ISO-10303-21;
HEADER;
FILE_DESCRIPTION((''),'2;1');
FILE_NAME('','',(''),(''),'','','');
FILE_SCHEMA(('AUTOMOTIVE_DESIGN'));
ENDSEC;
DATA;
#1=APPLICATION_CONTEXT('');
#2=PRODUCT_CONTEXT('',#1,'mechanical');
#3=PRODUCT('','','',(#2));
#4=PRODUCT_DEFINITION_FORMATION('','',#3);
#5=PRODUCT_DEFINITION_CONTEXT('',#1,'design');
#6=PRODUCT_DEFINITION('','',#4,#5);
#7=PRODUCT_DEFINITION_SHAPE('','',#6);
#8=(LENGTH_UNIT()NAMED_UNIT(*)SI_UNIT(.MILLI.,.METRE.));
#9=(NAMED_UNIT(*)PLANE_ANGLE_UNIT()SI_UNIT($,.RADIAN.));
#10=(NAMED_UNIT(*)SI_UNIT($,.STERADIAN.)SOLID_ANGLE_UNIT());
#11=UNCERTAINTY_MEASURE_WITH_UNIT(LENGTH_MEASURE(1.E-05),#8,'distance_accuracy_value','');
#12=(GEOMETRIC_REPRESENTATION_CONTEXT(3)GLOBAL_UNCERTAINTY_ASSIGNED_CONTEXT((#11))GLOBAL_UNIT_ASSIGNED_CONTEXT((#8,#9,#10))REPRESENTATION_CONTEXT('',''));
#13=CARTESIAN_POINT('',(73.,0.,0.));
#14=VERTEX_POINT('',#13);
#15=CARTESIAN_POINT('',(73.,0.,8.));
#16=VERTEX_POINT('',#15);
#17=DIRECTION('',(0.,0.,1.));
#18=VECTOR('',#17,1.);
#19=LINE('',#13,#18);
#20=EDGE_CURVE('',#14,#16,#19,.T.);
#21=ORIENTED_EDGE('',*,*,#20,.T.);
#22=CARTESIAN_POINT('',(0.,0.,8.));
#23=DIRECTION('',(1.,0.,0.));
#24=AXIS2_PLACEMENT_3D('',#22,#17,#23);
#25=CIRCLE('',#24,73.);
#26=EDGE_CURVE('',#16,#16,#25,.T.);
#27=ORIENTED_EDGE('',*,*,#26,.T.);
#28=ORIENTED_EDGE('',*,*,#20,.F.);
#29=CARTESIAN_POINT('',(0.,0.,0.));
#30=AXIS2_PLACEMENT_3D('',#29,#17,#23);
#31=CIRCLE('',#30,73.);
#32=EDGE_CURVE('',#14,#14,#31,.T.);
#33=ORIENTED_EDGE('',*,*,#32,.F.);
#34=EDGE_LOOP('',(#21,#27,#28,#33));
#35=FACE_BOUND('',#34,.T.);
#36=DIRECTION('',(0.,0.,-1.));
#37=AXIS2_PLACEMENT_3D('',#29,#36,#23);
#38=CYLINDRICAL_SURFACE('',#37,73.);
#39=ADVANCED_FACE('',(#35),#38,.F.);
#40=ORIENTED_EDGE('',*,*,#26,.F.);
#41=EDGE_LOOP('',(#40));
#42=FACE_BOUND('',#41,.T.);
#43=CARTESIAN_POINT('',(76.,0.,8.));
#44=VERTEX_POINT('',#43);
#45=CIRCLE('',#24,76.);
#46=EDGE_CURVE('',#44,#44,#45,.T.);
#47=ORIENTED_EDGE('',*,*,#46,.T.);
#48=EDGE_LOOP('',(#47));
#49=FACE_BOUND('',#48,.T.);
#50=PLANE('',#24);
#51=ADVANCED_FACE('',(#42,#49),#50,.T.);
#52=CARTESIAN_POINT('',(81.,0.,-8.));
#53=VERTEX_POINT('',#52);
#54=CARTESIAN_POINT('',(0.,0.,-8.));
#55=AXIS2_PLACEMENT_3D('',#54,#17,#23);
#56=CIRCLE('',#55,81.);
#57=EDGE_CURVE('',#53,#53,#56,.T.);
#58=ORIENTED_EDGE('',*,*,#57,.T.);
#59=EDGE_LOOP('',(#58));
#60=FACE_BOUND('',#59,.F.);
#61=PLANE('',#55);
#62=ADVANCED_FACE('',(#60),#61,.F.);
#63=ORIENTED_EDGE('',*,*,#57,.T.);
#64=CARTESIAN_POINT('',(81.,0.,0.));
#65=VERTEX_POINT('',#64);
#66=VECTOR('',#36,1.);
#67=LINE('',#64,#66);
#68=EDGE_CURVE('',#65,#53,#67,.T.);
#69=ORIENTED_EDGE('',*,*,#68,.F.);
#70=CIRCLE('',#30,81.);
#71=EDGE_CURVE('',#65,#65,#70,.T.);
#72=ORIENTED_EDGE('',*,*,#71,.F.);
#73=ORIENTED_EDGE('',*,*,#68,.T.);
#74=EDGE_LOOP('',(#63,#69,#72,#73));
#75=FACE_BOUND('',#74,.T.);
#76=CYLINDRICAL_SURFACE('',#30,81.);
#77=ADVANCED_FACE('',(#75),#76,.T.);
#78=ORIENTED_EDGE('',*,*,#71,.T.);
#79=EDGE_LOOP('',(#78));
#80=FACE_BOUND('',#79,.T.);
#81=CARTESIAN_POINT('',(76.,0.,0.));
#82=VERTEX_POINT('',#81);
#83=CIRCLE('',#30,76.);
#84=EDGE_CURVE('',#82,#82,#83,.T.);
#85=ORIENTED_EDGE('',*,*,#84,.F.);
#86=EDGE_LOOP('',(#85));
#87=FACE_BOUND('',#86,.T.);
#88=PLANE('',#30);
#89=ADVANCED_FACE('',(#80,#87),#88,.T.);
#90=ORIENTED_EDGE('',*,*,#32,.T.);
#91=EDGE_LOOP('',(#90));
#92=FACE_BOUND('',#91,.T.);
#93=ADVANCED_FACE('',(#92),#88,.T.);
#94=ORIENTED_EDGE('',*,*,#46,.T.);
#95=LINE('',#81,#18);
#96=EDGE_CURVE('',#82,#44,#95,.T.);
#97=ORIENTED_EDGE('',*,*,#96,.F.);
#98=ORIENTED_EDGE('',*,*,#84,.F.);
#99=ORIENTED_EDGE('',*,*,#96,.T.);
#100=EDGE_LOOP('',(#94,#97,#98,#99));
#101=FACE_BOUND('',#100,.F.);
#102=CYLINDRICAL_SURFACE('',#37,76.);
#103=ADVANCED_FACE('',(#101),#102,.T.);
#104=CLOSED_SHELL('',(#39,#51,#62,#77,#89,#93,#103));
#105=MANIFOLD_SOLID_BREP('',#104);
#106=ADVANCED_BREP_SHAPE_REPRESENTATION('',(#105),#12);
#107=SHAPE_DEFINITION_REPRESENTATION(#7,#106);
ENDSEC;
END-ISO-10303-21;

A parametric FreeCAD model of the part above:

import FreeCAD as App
import Part
import Sketcher

V = App.Vector

doc = App.newDocument("Part")
body = doc.addObject("PartDesign::Body", "Body")

# Sketch on XY plane
sketch1 = body.newObject("Sketcher::SketchObject", "Sketch")
sketch1.AttachmentSupport = (doc.getObject("XY_Plane"), [""])
sketch1.MapMode = "FlatFace"
sketch1.addGeometry(Part.Circle(V(0, 0, 0), V(0, 0, 1), 76), False)
sketch1.addGeometry(Part.Circle(V(0, 0, 0), V(0, 0, 1), 73), False)
sketch1.addConstraint(Sketcher.Constraint("Coincident", 0, 3, -1, 1))
sketch1.addConstraint(Sketcher.Constraint("Coincident", 1, 3, -1, 1))
sketch1.addConstraint(Sketcher.Constraint("Diameter", 0, 152.0))
sketch1.addConstraint(Sketcher.Constraint("Diameter", 1, 146.0))
pad1 = body.newObject("PartDesign::Pad", "Pad")
pad1.Profile = sketch1
pad1.Length = 8

# Sketch on XY plane
sketch2 = body.newObject("Sketcher::SketchObject", "Sketch001")
sketch2.AttachmentSupport = (doc.getObject("XY_Plane"), [""])
sketch2.MapMode = "FlatFace"
sketch2.addGeometry(Part.Circle(V(0, 0, 0), V(0, 0, 1), 81), False)
sketch2.addConstraint(Sketcher.Constraint("Coincident", 0, 3, -1, 1))
sketch2.addConstraint(Sketcher.Constraint("Diameter", 0, 162.0))
pad2 = body.newObject("PartDesign::Pad", "Pad001")
pad2.Profile = sketch2
pad2.Length = 8
pad2.Reversed = True

doc.recompute()
